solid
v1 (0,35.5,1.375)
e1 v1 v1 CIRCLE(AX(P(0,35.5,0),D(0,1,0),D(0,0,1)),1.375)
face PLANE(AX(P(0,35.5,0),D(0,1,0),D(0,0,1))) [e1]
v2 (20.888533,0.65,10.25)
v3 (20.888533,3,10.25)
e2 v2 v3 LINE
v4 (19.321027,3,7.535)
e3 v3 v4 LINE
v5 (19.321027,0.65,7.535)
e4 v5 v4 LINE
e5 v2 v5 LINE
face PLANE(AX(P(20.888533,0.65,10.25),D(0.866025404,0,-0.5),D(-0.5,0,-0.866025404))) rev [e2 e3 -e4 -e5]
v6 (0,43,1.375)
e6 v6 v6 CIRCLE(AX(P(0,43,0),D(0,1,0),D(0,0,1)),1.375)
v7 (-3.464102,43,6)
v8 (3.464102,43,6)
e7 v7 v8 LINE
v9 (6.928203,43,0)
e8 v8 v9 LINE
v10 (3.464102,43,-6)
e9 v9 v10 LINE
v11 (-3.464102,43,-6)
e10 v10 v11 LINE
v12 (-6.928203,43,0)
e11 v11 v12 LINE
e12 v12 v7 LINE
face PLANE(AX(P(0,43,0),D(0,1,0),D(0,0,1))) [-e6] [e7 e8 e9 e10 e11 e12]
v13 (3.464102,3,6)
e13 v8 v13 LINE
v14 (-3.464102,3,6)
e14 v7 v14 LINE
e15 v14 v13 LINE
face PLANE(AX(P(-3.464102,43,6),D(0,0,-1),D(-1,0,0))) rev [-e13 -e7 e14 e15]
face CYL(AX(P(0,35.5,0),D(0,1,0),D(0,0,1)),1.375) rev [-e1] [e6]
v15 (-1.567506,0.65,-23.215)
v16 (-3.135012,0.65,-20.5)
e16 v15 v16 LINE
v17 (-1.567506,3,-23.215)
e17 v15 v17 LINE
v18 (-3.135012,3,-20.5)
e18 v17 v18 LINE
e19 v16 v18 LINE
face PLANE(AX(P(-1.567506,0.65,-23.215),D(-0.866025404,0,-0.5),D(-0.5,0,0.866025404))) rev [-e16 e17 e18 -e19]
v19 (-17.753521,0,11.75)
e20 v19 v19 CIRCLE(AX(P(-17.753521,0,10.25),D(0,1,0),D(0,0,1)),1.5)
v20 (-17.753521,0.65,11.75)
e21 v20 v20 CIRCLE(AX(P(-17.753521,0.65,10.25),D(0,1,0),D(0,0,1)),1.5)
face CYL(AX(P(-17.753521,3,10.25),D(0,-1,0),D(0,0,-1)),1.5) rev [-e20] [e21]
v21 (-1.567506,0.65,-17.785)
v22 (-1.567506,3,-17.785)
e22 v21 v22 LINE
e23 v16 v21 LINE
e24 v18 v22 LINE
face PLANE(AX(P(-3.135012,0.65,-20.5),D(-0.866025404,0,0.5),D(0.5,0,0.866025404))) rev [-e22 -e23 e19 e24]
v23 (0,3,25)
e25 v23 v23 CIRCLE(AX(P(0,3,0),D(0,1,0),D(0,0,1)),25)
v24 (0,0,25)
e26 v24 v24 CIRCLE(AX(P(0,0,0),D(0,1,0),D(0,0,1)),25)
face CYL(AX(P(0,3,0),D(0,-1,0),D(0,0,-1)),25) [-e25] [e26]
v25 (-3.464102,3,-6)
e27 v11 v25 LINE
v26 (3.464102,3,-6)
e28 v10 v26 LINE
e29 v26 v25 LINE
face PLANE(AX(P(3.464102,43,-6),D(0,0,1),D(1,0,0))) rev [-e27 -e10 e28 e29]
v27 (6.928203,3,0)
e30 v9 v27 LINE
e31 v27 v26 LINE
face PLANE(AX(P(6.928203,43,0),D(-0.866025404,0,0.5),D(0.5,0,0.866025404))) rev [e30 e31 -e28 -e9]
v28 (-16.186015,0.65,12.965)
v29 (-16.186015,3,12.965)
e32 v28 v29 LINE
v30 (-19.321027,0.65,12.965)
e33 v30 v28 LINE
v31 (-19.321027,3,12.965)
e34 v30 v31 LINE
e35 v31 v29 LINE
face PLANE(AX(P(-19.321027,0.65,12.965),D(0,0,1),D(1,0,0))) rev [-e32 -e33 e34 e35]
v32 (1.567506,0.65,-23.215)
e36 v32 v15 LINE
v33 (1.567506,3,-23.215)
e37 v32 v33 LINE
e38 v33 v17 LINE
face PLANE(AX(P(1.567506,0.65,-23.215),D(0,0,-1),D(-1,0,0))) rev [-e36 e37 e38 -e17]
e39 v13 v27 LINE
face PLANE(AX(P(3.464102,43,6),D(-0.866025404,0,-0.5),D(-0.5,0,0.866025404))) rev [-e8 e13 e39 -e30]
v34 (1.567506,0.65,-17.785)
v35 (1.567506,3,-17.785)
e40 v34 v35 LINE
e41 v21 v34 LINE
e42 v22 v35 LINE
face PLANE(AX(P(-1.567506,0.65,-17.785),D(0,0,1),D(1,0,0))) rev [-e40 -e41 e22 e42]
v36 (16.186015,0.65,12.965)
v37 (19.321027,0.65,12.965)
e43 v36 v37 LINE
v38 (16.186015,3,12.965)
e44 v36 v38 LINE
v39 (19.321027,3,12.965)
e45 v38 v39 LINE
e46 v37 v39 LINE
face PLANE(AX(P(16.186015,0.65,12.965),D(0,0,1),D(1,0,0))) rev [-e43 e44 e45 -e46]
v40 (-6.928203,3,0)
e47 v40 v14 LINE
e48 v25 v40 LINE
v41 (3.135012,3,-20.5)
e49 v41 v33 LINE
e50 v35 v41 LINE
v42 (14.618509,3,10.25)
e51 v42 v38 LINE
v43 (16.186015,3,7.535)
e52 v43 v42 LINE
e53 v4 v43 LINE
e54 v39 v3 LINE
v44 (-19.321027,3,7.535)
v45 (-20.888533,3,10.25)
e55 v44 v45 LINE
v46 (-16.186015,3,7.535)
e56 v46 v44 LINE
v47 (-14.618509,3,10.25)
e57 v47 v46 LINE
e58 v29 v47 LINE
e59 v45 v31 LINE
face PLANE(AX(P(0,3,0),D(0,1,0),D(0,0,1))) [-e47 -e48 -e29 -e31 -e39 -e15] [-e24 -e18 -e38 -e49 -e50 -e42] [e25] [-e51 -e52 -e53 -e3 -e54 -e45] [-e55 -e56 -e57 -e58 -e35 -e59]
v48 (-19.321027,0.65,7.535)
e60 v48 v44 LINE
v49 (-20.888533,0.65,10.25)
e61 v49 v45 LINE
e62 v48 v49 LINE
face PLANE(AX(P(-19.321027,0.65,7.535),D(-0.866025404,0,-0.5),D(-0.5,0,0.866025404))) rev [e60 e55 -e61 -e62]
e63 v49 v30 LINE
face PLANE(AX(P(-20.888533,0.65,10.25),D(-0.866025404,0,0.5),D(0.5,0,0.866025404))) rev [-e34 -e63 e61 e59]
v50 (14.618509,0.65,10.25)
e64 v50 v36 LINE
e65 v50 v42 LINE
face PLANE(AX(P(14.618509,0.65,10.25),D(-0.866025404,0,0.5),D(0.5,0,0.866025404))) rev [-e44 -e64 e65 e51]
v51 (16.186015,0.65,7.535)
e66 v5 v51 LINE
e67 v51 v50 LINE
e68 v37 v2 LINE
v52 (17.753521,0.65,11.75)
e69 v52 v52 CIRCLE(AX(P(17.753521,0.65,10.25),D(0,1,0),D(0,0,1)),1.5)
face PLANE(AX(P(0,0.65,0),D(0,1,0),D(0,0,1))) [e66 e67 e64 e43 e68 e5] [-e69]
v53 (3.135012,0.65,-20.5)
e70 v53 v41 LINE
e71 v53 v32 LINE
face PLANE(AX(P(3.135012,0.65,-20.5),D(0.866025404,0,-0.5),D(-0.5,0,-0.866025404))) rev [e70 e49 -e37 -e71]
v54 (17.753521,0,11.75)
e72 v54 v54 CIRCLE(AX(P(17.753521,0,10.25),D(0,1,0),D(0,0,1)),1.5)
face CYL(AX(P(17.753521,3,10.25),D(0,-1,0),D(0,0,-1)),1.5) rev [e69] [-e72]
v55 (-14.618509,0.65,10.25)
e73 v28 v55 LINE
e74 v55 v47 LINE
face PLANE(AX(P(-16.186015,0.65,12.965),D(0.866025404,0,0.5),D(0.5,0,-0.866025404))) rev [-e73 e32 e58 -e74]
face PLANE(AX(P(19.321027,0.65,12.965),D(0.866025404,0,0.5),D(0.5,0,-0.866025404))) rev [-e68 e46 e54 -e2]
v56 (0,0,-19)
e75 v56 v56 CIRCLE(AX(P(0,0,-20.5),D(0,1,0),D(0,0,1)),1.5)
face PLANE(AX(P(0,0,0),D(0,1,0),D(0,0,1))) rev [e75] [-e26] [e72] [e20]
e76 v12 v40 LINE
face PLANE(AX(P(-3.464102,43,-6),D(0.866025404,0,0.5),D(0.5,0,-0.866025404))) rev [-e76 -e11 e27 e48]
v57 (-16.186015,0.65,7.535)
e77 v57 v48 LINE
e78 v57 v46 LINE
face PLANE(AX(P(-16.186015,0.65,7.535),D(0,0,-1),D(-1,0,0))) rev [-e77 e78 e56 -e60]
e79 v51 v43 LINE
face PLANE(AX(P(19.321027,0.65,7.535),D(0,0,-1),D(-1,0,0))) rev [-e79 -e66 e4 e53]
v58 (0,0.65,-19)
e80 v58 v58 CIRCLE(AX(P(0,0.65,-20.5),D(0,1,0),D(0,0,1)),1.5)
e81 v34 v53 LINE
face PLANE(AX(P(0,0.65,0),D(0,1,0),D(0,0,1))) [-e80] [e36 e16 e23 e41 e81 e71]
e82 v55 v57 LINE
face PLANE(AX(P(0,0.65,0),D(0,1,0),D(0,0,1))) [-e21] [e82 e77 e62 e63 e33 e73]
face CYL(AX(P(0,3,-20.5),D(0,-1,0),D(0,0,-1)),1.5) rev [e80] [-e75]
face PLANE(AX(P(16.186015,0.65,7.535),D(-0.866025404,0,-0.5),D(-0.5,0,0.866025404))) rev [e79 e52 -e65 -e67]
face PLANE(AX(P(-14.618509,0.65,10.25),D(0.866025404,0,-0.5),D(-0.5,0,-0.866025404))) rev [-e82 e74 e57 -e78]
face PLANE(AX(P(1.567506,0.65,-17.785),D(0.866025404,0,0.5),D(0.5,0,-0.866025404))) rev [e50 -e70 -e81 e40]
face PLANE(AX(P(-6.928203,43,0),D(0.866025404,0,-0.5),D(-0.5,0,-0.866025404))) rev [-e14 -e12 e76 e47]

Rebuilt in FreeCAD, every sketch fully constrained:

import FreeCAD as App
import Part
import Sketcher
from FreeCAD import Vector
Q = App.Units.Quantity


def add_polygon(sketch, points):
    """Adds a closed chain of lines whose ends are joined by coincident constraints."""
    first, n = sketch.GeometryCount, len(points)
    for a, b in zip(points, points[1:] + points[:1]):
        sketch.addGeometry(Part.LineSegment(App.Vector(*a, 0), App.Vector(*b, 0)), False)
    for i in range(n):
        sketch.addConstraint(Sketcher.Constraint("Coincident", first + i, 2, first + (i + 1) % n, 1))

doc = App.newDocument("Part")
params = doc.addObject("Spreadsheet::Sheet", "Params")
for row, (alias, value) in enumerate([
    ("sketch1_diameter", "50 mm"),
    ("sketch1_diameter2", "3 mm"),
    ("pad1_length", "3 mm"),
    ("pad2_length", "40 mm"),
    ("sketch3_diameter", "2.75 mm"),
    ("pocket1_length", "7.5 mm"),
    ("pocket2_length", "2.35 mm"),
], start=1):
    params.set(f"A{row}", alias)
    params.set(f"B{row}", "=" + value)
    params.setAlias(f"B{row}", alias)

body = doc.addObject("PartDesign::Body", "Body")

# Sketch on XZ plane
sketch1 = doc.addObject("Sketcher::SketchObject", "Sketch")
body.addObject(sketch1)
sketch1.AttachmentSupport = (doc.XZ_Plane, [""])
sketch1.MapMode = "FlatFace"
sketch1.addGeometry([
    Part.Circle(Vector(0, 0, 0), Vector(0, 0, 1), 25),
    Part.Circle(Vector(0, -20.5, 0), Vector(0, 0, 1), 1.5),
    Part.Circle(Vector(-17.8, 10.2, 0), Vector(0, 0, 1), 1.5),
    Part.Circle(Vector(17.8, 10.2, 0), Vector(0, 0, 1), 1.5),
], False)
sketch1.addConstraint([
    Sketcher.Constraint("Coincident", 0, 3, -1, 1),
    Sketcher.Constraint("Equal", 1, 2),
    Sketcher.Constraint("Equal", 2, 3),
    Sketcher.Constraint("Symmetric", 2, 3, 3, 3, -2),
    Sketcher.Constraint("PointOnObject", 1, 3, -2),
    Sketcher.Constraint("Diameter", 0, Q("50 mm")),
    Sketcher.Constraint("Diameter", 1, Q("3 mm")),
    Sketcher.Constraint("DistanceY", 1, 3, -1, 1, Q("20.5 mm")),
    Sketcher.Constraint("DistanceY", -1, 1, 2, 3, Q("10.25 mm")),
    Sketcher.Constraint("DistanceX", 2, 3, -1, 1, Q("17.753521 mm")),
])
sketch1.setExpression("Constraints[5]", "Params.sketch1_diameter")
sketch1.setExpression("Constraints[6]", "Params.sketch1_diameter2")
pad1 = doc.addObject("PartDesign::Pad", "Pad")
body.addObject(pad1)
pad1.Profile = sketch1
pad1.setExpression("Length", "Params.pad1_length")
pad1.Reversed = True

# Sketch on XZ plane
sketch2 = doc.addObject("Sketcher::SketchObject", "Sketch001")
body.addObject(sketch2)
sketch2.AttachmentSupport = (doc.XZ_Plane, [""])
sketch2.MapMode = "FlatFace"
sketch2.AttachmentOffset = App.Placement(Vector(0, 0, -3), App.Rotation())
add_polygon(sketch2, [(-7, 0), (-3, 6), (3, 6), (7, 0), (3, -6), (-3, -6)])  # lines 0-5
sketch2.addConstraint([
    Sketcher.Constraint("Horizontal", 1),
    Sketcher.Constraint("Horizontal", 4),
    Sketcher.Constraint("Symmetric", 0, 2, 3, 2, -1, 1),
    Sketcher.Constraint("Symmetric", 2, 2, 5, 2, -1, 1),
    Sketcher.Constraint("PointOnObject", 2, 2, -1),
    Sketcher.Constraint("Parallel", 2, 5),
    Sketcher.Constraint("Vertical", 1, 2, 3, 2),
    Sketcher.Constraint("Angle", 0, Q("60 deg")),
    Sketcher.Constraint("DistanceY", -1, 1, 0, 2, Q("6 mm")),
    Sketcher.Constraint("DistanceX", 0, 2, -1, 1, Q("3.464102 mm")),
])
pad2 = doc.addObject("PartDesign::Pad", "Pad001")
body.addObject(pad2)
pad2.Profile = sketch2
pad2.setExpression("Length", "Params.pad2_length")
pad2.Reversed = True

# Sketch on XZ plane
sketch3 = doc.addObject("Sketcher::SketchObject", "Sketch002")
body.addObject(sketch3)
sketch3.AttachmentSupport = (doc.XZ_Plane, [""])
sketch3.MapMode = "FlatFace"
sketch3.AttachmentOffset = App.Placement(Vector(0, 0, -43), App.Rotation())
sketch3.addGeometry(Part.Circle(Vector(0, 0, 0), Vector(0, 0, 1), 1.4), False)
sketch3.addConstraint([
    Sketcher.Constraint("Coincident", 0, 3, -1, 1),
    Sketcher.Constraint("Diameter", 0, Q("2.75 mm")),
])
sketch3.setExpression("Constraints[1]", "Params.sketch3_diameter")
pocket1 = doc.addObject("PartDesign::Pocket", "Pocket")
body.addObject(pocket1)
pocket1.Profile = sketch3
pocket1.setExpression("Length", "Params.pocket1_length")
pocket1.Reversed = True

# Sketch on XZ plane
sketch4 = doc.addObject("Sketcher::SketchObject", "Sketch003")
body.addObject(sketch4)
sketch4.AttachmentSupport = (doc.XZ_Plane, [""])
sketch4.MapMode = "FlatFace"
sketch4.AttachmentOffset = App.Placement(Vector(0, 0, -3), App.Rotation())
add_polygon(sketch4, [(1.6, -23.2), (-1.6, -23.2), (-3.1, -20.5), (-1.6, -17.8), (1.6, -17.8), (3.1, -20.5)])  # lines 0-5
add_polygon(sketch4, [(19.3, 13), (20.9, 10.2), (19.3, 7.5), (16.2, 7.5), (14.6, 10.2), (16.2, 13)])  # lines 6-11
add_polygon(sketch4, [(-20.9, 10.2), (-19.3, 13), (-16.2, 13), (-14.6, 10.2), (-16.2, 7.5), (-19.3, 7.5)])  # lines 12-17
sketch4.addConstraint([
    Sketcher.Constraint("Horizontal", 0),
    Sketcher.Constraint("Horizontal", 3),
    Sketcher.Constraint("Horizontal", 8),
    Sketcher.Constraint("Horizontal", 11),
    Sketcher.Constraint("Horizontal", 13),
    Sketcher.Constraint("Horizontal", 16),
    Sketcher.Constraint("Symmetric", 1, 2, 4, 2, -2),
    Sketcher.Constraint("Symmetric", 11, 2, 12, 2, -2),
    Sketcher.Constraint("Symmetric", 9, 2, 14, 2, -2),
    Sketcher.Constraint("Symmetric", 8, 2, 15, 2, -2),
    Sketcher.Constraint("Symmetric", 6, 2, 17, 2, -2),
    Sketcher.Constraint("Parallel", 1, 4),
    Sketcher.Constraint("Parallel", 2, 5),
    Sketcher.Constraint("Parallel", 4, 6),
    Sketcher.Constraint("Parallel", 5, 7),
    Sketcher.Constraint("Parallel", 6, 9),
    Sketcher.Constraint("Parallel", 7, 10),
    Sketcher.Constraint("Parallel", 10, 12),
    Sketcher.Constraint("Parallel", 9, 14),
    Sketcher.Constraint("Parallel", 14, 17),
    Sketcher.Constraint("Horizontal", 6, 2, 9, 2),
    Sketcher.Constraint("Vertical", 0, 2, 2, 2),
    Sketcher.Constraint("Vertical", 8, 2, 10, 2),
    Sketcher.Constraint("Equal", 3, 8),
    Sketcher.Constraint("Equal", 5, 6),
    Sketcher.Constraint("Angle", 1, Q("120 deg")),
    Sketcher.Constraint("DistanceY", 1, 2, -1, 1, Q("20.5 mm")),
    Sketcher.Constraint("DistanceY", -1, 1, 6, 2, Q("10.25 mm")),
    Sketcher.Constraint("DistanceY", 0, 2, 2, 2, Q("5.43 mm")),
    Sketcher.Constraint("DistanceX", 0, 2, 0, 1, Q("3.135012 mm")),
    Sketcher.Constraint("DistanceX", -1, 1, 9, 2, Q("14.618509 mm")),
])
pocket2 = doc.addObject("PartDesign::Pocket", "Pocket001")
body.addObject(pocket2)
pocket2.Profile = sketch4
pocket2.setExpression("Length", "Params.pocket2_length")
pocket2.Reversed = True

doc.recompute()
